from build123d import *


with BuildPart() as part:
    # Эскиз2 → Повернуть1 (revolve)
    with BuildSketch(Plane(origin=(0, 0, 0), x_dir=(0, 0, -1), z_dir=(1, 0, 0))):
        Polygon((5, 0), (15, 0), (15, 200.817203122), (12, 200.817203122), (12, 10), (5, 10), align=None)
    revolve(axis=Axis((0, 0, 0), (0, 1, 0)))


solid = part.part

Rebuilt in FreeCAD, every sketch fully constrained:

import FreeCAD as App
import Part
import Sketcher

V = App.Vector

doc = App.newDocument("Part")
params = doc.addObject("Spreadsheet::Sheet", "Params")
for row, (alias, value) in enumerate([
    ("sketch1_width", "10 mm"),
    ("sketch1_height", "3 mm"),
    ("revolution_angle", "360 deg"),
], start=1):
    params.set(f"A{row}", alias)
    params.set(f"B{row}", "=" + value)
    params.setAlias(f"B{row}", alias)

body = doc.addObject("PartDesign::Body", "Body")

sketch1 = body.newObject("Sketcher::SketchObject", "Sketch")
sketch1.AttachmentSupport = (doc.getObject("YZ_Plane"), [""])
sketch1.MapMode = "FlatFace"
sketch1.addGeometry([
    Part.LineSegment(V(0, -5, 0), V(0, -15, 0)),
    Part.LineSegment(V(0, -15, 0), V(200.817203, -15, 0)),
    Part.LineSegment(V(200.817203, -15, 0), V(200.817203, -12, 0)),
    Part.LineSegment(V(200.817203, -12, 0), V(10, -12, 0)),
    Part.LineSegment(V(10, -12, 0), V(10, -5, 0)),
    Part.LineSegment(V(10, -5, 0), V(0, -5, 0)),
], False)
sketch1.addConstraint([
    Sketcher.Constraint("Coincident", 0, 2, 1, 1),
    Sketcher.Constraint("Coincident", 1, 2, 2, 1),
    Sketcher.Constraint("Coincident", 2, 2, 3, 1),
    Sketcher.Constraint("Coincident", 3, 2, 4, 1),
    Sketcher.Constraint("Coincident", 4, 2, 5, 1),
    Sketcher.Constraint("Coincident", 5, 2, 0, 1),
    Sketcher.Constraint("Vertical", 0),
    Sketcher.Constraint("Horizontal", 1),
    Sketcher.Constraint("Vertical", 2),
    Sketcher.Constraint("Horizontal", 3),
    Sketcher.Constraint("Vertical", 4),
    Sketcher.Constraint("Horizontal", 5),
    Sketcher.Constraint("PointOnObject", 0, 2, -2),
    Sketcher.Constraint("Equal", 5, 0),
    Sketcher.Constraint("DistanceX", 5, 2, 5, 1, 10.0),
    Sketcher.Constraint("DistanceY", 2, 1, 2, 2, 3.0),
    Sketcher.Constraint("DistanceY", 0, 2, -1, 1, 15.0),
    Sketcher.Constraint("DistanceX", 1, 1, 1, 2, 200.817203),
])
sketch1.setExpression("Constraints[14]", "Params.sketch1_width")
sketch1.setExpression("Constraints[15]", "Params.sketch1_height")
revolution = body.newObject("PartDesign::Revolution", "Revolution")
revolution.Profile = sketch1
revolution.ReferenceAxis = (sketch1, ["H_Axis"])
revolution.setExpression("Angle", "Params.revolution_angle")

doc.recompute()
